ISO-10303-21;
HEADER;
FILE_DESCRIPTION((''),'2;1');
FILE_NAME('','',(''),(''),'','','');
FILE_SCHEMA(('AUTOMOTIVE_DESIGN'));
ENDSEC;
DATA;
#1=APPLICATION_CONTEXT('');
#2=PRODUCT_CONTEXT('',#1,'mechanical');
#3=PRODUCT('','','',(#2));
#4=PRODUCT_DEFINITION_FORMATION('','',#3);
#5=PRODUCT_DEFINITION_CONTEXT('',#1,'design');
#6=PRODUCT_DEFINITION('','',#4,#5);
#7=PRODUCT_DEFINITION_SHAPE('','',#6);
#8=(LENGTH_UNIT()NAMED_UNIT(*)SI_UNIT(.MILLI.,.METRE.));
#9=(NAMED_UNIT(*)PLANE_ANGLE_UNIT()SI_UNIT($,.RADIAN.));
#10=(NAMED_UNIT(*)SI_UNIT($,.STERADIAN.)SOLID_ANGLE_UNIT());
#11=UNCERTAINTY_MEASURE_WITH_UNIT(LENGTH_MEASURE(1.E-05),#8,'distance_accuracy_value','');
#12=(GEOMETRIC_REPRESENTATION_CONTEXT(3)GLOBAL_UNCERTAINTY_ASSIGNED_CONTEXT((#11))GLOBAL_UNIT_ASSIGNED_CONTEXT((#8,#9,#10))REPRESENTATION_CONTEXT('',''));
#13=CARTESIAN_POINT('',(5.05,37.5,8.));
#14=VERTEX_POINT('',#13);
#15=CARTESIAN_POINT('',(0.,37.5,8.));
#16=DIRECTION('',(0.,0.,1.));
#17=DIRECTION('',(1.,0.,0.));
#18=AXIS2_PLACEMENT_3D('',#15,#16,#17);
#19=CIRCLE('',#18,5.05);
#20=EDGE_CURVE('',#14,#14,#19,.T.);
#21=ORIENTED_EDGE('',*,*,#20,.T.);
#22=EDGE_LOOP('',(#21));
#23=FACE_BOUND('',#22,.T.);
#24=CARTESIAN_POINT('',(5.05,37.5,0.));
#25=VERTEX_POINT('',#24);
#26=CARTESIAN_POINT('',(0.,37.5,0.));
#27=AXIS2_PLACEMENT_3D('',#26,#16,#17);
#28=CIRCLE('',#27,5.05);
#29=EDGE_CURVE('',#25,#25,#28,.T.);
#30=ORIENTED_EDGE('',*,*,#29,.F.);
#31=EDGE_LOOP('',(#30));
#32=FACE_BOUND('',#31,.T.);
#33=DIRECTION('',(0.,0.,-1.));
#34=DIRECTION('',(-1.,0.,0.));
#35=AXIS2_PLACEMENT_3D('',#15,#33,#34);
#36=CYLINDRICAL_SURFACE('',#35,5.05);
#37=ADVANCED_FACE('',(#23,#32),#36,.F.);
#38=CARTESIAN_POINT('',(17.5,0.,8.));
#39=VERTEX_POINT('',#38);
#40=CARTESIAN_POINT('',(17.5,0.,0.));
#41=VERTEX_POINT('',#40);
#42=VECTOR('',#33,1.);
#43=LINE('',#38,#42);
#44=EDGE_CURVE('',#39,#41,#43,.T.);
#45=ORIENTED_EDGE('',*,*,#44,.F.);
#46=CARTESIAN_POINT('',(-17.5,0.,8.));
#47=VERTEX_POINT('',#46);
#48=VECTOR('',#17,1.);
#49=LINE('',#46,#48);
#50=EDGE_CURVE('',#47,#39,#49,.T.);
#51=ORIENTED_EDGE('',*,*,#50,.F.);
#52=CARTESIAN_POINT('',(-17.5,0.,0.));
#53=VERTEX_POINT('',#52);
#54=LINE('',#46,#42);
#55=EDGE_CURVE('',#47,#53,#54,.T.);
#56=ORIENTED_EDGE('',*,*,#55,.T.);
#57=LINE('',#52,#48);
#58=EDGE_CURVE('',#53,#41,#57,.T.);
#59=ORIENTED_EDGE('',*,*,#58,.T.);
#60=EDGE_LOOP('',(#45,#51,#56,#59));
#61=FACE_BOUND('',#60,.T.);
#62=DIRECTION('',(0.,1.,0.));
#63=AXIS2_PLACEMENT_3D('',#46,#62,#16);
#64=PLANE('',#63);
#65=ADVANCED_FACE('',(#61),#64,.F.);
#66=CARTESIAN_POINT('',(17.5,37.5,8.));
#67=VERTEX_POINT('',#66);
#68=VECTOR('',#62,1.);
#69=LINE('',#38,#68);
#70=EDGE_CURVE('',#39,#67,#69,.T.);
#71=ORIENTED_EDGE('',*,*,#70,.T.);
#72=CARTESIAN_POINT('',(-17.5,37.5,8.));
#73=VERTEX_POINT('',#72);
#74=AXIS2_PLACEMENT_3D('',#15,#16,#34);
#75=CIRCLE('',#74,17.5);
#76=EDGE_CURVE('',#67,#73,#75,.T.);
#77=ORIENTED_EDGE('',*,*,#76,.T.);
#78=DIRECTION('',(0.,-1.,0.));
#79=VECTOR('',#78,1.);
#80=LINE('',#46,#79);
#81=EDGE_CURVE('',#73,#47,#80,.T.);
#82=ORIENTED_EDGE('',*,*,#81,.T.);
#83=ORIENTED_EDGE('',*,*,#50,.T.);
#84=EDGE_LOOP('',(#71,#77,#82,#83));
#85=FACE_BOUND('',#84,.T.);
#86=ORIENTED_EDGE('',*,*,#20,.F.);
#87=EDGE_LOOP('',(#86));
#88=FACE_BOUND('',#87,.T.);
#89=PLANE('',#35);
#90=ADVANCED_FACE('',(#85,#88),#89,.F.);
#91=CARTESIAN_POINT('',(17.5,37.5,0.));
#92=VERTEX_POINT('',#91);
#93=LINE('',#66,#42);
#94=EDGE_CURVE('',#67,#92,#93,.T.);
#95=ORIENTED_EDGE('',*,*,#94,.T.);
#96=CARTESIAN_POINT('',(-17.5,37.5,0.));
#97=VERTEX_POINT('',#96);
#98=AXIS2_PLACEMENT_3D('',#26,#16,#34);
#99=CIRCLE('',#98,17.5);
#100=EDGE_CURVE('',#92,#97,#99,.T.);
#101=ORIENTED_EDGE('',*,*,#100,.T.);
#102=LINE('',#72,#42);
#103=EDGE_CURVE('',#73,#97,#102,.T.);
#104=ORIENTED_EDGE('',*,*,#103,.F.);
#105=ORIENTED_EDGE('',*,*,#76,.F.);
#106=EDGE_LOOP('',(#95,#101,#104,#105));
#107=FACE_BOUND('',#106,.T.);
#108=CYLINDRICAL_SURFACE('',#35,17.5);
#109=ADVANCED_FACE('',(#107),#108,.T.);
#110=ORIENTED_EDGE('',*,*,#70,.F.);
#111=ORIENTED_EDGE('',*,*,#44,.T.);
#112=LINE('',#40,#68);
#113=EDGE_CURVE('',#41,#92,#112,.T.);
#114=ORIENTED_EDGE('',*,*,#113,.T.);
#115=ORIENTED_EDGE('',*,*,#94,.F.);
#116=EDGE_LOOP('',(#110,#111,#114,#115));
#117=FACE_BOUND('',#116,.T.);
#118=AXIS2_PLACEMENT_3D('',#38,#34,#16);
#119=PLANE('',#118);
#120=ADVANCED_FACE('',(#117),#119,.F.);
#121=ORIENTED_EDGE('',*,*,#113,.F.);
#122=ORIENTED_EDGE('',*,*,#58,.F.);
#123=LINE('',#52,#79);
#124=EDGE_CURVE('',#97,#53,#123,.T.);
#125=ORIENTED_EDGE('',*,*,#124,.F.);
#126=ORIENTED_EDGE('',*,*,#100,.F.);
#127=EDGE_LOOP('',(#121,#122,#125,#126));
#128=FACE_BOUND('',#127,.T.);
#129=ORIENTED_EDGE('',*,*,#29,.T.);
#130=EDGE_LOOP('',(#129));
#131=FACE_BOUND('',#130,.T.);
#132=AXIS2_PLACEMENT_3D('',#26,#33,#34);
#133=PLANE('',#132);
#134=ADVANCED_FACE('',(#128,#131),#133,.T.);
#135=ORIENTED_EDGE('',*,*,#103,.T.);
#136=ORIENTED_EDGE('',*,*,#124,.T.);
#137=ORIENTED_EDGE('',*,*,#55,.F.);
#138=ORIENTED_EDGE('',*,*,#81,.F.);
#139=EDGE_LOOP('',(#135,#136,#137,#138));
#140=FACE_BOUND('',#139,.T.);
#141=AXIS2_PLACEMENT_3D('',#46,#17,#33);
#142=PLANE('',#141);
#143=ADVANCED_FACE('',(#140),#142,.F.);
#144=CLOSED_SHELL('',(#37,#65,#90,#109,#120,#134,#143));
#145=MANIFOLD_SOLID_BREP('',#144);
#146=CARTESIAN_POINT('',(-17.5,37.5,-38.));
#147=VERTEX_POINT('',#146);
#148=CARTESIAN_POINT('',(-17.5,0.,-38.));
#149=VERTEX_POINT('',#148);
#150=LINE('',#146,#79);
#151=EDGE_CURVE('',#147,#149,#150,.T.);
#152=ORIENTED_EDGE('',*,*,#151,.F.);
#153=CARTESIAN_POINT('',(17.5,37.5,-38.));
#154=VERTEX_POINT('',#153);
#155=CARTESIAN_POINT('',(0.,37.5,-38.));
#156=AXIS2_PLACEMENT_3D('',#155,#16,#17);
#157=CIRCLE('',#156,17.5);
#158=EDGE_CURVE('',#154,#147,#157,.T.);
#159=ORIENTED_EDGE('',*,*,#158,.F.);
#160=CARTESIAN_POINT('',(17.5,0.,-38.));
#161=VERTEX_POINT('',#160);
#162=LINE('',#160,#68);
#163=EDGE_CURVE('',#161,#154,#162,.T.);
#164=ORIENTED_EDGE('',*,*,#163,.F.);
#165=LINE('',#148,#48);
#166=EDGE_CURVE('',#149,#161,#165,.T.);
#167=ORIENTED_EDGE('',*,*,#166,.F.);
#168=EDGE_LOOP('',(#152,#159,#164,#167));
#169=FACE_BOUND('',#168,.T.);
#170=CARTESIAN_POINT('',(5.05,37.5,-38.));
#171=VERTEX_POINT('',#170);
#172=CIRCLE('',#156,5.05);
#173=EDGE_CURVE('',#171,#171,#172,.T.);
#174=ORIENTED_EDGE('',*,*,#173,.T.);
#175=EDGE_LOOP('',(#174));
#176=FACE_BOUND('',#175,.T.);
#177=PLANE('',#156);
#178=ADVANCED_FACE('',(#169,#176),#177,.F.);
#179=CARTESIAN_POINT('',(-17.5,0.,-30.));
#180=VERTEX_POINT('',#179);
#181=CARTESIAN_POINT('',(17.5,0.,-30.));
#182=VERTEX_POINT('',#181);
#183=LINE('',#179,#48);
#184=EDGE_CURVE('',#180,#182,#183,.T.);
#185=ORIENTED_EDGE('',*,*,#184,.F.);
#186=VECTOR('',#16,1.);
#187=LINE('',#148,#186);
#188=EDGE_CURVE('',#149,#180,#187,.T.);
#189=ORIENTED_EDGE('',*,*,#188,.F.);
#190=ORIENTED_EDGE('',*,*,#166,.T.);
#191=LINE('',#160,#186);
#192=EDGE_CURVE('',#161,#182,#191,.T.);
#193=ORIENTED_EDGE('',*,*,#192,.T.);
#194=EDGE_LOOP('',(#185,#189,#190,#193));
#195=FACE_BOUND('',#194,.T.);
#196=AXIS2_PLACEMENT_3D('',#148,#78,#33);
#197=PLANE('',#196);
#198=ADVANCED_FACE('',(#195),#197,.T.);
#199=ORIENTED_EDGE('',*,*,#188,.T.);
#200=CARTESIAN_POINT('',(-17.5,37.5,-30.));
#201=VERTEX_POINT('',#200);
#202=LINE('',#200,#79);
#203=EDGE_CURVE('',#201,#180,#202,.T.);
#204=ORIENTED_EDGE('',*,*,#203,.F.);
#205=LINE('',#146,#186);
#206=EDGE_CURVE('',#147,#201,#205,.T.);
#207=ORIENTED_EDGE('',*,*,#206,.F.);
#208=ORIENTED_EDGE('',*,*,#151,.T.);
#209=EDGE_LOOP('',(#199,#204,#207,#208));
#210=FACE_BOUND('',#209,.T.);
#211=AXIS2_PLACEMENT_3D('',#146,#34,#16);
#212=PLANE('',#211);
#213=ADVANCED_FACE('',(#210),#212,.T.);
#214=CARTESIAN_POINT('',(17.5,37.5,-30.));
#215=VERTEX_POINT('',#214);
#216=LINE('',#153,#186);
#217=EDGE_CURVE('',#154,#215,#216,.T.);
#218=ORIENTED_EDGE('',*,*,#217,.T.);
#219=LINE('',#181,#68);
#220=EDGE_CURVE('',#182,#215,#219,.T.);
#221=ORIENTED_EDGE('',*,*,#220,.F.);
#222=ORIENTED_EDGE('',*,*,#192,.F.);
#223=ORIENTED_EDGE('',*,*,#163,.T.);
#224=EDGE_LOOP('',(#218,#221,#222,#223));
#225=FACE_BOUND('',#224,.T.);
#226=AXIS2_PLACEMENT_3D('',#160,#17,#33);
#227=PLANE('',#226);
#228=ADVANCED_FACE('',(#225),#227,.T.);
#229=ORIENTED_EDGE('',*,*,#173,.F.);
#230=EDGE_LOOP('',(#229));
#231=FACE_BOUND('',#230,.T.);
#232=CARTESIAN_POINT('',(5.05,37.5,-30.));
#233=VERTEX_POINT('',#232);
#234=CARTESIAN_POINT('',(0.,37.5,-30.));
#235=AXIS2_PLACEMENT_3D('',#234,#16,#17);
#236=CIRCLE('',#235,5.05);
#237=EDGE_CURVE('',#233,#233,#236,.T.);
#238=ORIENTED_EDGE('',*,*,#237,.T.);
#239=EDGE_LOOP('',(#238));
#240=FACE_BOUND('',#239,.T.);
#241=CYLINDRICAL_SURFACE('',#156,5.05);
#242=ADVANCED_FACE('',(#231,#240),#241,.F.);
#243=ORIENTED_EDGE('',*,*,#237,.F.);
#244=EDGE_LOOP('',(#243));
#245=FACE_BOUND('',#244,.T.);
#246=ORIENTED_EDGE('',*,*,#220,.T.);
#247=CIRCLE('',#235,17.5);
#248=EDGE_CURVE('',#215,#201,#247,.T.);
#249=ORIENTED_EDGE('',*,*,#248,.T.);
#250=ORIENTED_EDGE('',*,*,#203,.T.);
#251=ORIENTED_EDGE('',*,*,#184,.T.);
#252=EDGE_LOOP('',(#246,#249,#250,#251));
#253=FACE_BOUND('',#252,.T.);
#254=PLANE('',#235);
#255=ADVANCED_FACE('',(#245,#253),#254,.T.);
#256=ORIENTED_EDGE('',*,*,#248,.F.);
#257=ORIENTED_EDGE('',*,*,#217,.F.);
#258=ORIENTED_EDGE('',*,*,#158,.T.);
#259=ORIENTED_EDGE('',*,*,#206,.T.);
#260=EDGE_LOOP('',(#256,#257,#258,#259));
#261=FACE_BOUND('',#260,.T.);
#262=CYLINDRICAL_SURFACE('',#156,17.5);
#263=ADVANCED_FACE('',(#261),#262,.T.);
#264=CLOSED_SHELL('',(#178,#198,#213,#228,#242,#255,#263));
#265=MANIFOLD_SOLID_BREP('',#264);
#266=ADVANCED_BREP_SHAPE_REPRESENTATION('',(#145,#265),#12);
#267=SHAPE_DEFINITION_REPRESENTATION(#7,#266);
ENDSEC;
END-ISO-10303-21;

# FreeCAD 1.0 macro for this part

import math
import FreeCAD as App
import Part
import Sketcher

V = App.Vector
Q = App.Units.Quantity

doc = App.newDocument("Part")
body = doc.addObject("PartDesign::Body", "Body")

# Sketch on XY plane
sketch1 = body.newObject("Sketcher::SketchObject", "Sketch")
sketch1.AttachmentSupport = (doc.getObject("XY_Plane"), [""])
sketch1.MapMode = "FlatFace"
sketch1.addGeometry(Part.LineSegment(V(-18, 0, 0), V(18, 0, 0)), False)
sketch1.addGeometry(Part.LineSegment(V(18, 0, 0), V(18, 38, 0)), False)
sketch1.addGeometry(Part.ArcOfCircle(Part.Circle(V(0, 38, 0), V(0, 0, 1), 18), math.radians(0), math.radians(180)), False)
sketch1.addGeometry(Part.LineSegment(V(-18, 38, 0), V(-18, 0, 0)), False)
sketch1.addGeometry(Part.Circle(V(0, 38, 0), V(0, 0, 1), 5), False)
sketch1.addConstraint(Sketcher.Constraint("Coincident", 0, 2, 1, 1))
sketch1.addConstraint(Sketcher.Constraint("Tangent", 1, 2, 2, 1))
sketch1.addConstraint(Sketcher.Constraint("Tangent", 2, 2, 3, 1))
sketch1.addConstraint(Sketcher.Constraint("Coincident", 3, 2, 0, 1))
sketch1.addConstraint(Sketcher.Constraint("Horizontal", 0))
sketch1.addConstraint(Sketcher.Constraint("Vertical", 1))
sketch1.addConstraint(Sketcher.Constraint("Vertical", 3))
sketch1.addConstraint(Sketcher.Constraint("Coincident", 4, 3, 2, 3))
sketch1.addConstraint(Sketcher.Constraint("Symmetric", 0, 2, 3, 2, -1, 1))
sketch1.addConstraint(Sketcher.Constraint("Diameter", 4, Q("10.1 mm")))
sketch1.addConstraint(Sketcher.Constraint("Radius", 2, Q("17.5 mm")))
sketch1.addConstraint(Sketcher.Constraint("DistanceY", 1, 1, 1, 2, Q("37.5 mm")))
pad1 = body.newObject("PartDesign::Pad", "Pad")
pad1.Profile = sketch1
pad1.Length = 8
body2 = doc.addObject("PartDesign::Body", "Body001")

# Sketch on XY plane
sketch2 = body2.newObject("Sketcher::SketchObject", "Sketch001")
sketch2.AttachmentSupport = (doc.getObject("XY_Plane001"), [""])
sketch2.MapMode = "FlatFace"
sketch2.AttachmentOffset = App.Placement(V(0, 0, -30), App.Rotation())
sketch2.addGeometry(Part.LineSegment(V(18, 0, 0), V(18, 38, 0)), False)
sketch2.addGeometry(Part.ArcOfCircle(Part.Circle(V(0, 38, 0), V(0, 0, 1), 18), math.radians(0), math.radians(180)), False)
sketch2.addGeometry(Part.LineSegment(V(-18, 38, 0), V(-18, 0, 0)), False)
sketch2.addGeometry(Part.LineSegment(V(-18, 0, 0), V(18, 0, 0)), False)
sketch2.addGeometry(Part.Circle(V(0, 38, 0), V(0, 0, 1), 5), False)
sketch2.addConstraint(Sketcher.Constraint("Tangent", 0, 2, 1, 1))
sketch2.addConstraint(Sketcher.Constraint("Tangent", 1, 2, 2, 1))
sketch2.addConstraint(Sketcher.Constraint("Coincident", 2, 2, 3, 1))
sketch2.addConstraint(Sketcher.Constraint("Coincident", 3, 2, 0, 1))
sketch2.addConstraint(Sketcher.Constraint("Vertical", 0))
sketch2.addConstraint(Sketcher.Constraint("Vertical", 2))
sketch2.addConstraint(Sketcher.Constraint("Horizontal", 3))
sketch2.addConstraint(Sketcher.Constraint("Coincident", 4, 3, 1, 3))
sketch2.addConstraint(Sketcher.Constraint("Symmetric", 2, 2, 3, 2, -1, 1))
sketch2.addConstraint(Sketcher.Constraint("Diameter", 4, Q("10.1 mm")))
sketch2.addConstraint(Sketcher.Constraint("Radius", 1, Q("17.5 mm")))
sketch2.addConstraint(Sketcher.Constraint("DistanceY", 0, 1, 0, 2, Q("37.5 mm")))
pad2 = body2.newObject("PartDesign::Pad", "Pad001")
pad2.Profile = sketch2
pad2.Length = 8
pad2.Reversed = True

doc.recompute()
